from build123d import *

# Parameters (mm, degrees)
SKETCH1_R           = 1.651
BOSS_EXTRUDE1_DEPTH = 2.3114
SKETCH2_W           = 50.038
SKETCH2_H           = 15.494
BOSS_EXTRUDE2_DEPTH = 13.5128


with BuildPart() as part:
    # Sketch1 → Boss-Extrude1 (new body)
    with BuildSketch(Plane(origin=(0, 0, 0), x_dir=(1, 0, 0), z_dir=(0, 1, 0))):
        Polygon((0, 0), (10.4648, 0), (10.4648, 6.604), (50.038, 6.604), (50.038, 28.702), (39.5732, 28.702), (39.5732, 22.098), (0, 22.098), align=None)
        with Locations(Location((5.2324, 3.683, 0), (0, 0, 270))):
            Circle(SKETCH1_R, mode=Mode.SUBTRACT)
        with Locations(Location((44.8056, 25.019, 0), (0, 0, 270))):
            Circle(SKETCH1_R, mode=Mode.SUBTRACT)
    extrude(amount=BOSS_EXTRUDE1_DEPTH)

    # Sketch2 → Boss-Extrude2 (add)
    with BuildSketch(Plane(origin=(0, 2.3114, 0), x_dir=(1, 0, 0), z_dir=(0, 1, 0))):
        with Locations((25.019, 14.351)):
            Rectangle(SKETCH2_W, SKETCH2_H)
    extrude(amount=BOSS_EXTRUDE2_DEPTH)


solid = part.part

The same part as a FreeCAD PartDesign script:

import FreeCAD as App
import Part
import Sketcher
from FreeCAD import Vector
Q = App.Units.Quantity


def add_polygon(sketch, points):
    """Adds a closed chain of lines whose ends are joined by coincident constraints."""
    first, n = sketch.GeometryCount, len(points)
    for a, b in zip(points, points[1:] + points[:1]):
        sketch.addGeometry(Part.LineSegment(App.Vector(*a, 0), App.Vector(*b, 0)), False)
    for i in range(n):
        sketch.addConstraint(Sketcher.Constraint("Coincident", first + i, 2, first + (i + 1) % n, 1))

doc = App.newDocument("Part")
params = doc.addObject("Spreadsheet::Sheet", "Params")
for row, (alias, value) in enumerate([
    ("sketch1_diameter", "0.13 in"),
    ("sketch1_height", "0.26 in"),
    ("sketch1_height2", "0.87 in"),
    ("sketch1_width", "0.412 in"),
    ("sketch1_width2", "1.558 in"),
    ("pad1_length", "0.091 in"),
    ("sketch2_width", "1.97 in"),
    ("sketch2_height", "0.61 in"),
    ("pad2_length", "0.532 in"),
], start=1):
    params.set(f"A{row}", alias)
    params.set(f"B{row}", "=" + value)
    params.setAlias(f"B{row}", alias)

body = doc.addObject("PartDesign::Body", "Body")

sketch1 = body.newObject("Sketcher::SketchObject", "Sketch")
sketch1.AttachmentSupport = (doc.getObject("XZ_Plane"), [""])
sketch1.MapMode = "FlatFace"
add_polygon(sketch1, [(0, 0), (10.5, 0), (10.5, -6.6), (50, -6.6), (50, -28.7), (39.6, -28.7), (39.6, -22.1), (0, -22.1)])
sketch1.addGeometry(Part.Circle(Vector(5.2, -3.7, 0), Vector(0, 0, 1), 1.7), False)
sketch1.addGeometry(Part.Circle(Vector(44.8, -25, 0), Vector(0, 0, 1), 1.7), False)
sketch1.addConstraint([
    Sketcher.Constraint("Horizontal", 0),
    Sketcher.Constraint("Vertical", 1),
    Sketcher.Constraint("Horizontal", 2),
    Sketcher.Constraint("Vertical", 3),
    Sketcher.Constraint("Horizontal", 4),
    Sketcher.Constraint("Vertical", 5),
    Sketcher.Constraint("Horizontal", 6),
    Sketcher.Constraint("Vertical", 7),
    Sketcher.Constraint("Coincident", 7, 2, -1, 1),
    Sketcher.Constraint("Equal", 8, 9),
    Sketcher.Constraint("Equal", 0, 4),
    Sketcher.Constraint("Equal", 1, 5),
    Sketcher.Constraint("Diameter", 8, Q("0.13 in")),
    Sketcher.Constraint("DistanceY", 1, 2, 1, 1, Q("0.26 in")),
    Sketcher.Constraint("DistanceY", 3, 2, 3, 1, Q("0.87 in")),
    Sketcher.Constraint("DistanceX", 0, 1, 0, 2, Q("0.412 in")),
    Sketcher.Constraint("DistanceX", 2, 1, 2, 2, Q("1.558 in")),
    Sketcher.Constraint("DistanceY", 9, 3, 8, 3, Q("0.84 in")),
    Sketcher.Constraint("DistanceX", -1, 1, 8, 3, Q("0.206 in")),
    Sketcher.Constraint("DistanceY", 8, 3, -1, 1, Q("0.145 in")),
    Sketcher.Constraint("DistanceX", -1, 1, 9, 3, Q("1.764 in")),
])
sketch1.setExpression("Constraints[20]", "Params.sketch1_diameter")
sketch1.setExpression("Constraints[21]", "Params.sketch1_height")
sketch1.setExpression("Constraints[22]", "Params.sketch1_height2")
sketch1.setExpression("Constraints[23]", "Params.sketch1_width")
sketch1.setExpression("Constraints[24]", "Params.sketch1_width2")
pad1 = body.newObject("PartDesign::Pad", "Pad")
pad1.Profile = sketch1
pad1.setExpression("Length", "Params.pad1_length")
pad1.Reversed = True

sketch2 = body.newObject("Sketcher::SketchObject", "Sketch001")
sketch2.AttachmentSupport = (doc.getObject("XZ_Plane"), [""])
sketch2.MapMode = "FlatFace"
sketch2.AttachmentOffset = App.Placement(Vector(0, 0, -0.091 * 25.4), App.Rotation())
add_polygon(sketch2, [(0, -22), (0, -7), (50, -7), (50, -22)])
sketch2.addConstraint([
    Sketcher.Constraint("Vertical", 0),
    Sketcher.Constraint("Horizontal", 1),
    Sketcher.Constraint("Vertical", 2),
    Sketcher.Constraint("Horizontal", 3),
    Sketcher.Constraint("PointOnObject", 0, 2, -2),
    Sketcher.Constraint("DistanceX", 1, 1, 1, 2, Q("1.97 in")),
    Sketcher.Constraint("DistanceY", 0, 1, 0, 2, Q("0.61 in")),
    Sketcher.Constraint("DistanceY", 0, 2, -1, 1, Q("0.26 in")),
])
sketch2.setExpression("Constraints[9]", "Params.sketch2_width")
sketch2.setExpression("Constraints[10]", "Params.sketch2_height")
pad2 = body.newObject("PartDesign::Pad", "Pad001")
pad2.Profile = sketch2
pad2.setExpression("Length", "Params.pad2_length")
pad2.Reversed = True

doc.recompute()
